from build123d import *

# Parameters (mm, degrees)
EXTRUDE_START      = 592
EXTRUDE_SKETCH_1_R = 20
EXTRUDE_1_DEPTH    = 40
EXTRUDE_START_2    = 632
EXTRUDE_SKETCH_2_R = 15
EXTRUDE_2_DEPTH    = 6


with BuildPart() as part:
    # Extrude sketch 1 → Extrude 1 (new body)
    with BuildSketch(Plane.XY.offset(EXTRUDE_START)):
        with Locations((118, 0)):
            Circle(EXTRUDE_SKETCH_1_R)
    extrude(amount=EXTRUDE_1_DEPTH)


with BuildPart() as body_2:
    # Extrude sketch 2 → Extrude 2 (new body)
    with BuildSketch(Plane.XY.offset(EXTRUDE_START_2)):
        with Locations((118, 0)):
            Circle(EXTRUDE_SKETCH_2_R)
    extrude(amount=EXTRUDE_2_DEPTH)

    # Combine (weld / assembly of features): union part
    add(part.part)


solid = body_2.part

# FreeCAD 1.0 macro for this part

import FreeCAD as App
import Part
import Sketcher

V = App.Vector

doc = App.newDocument("Part")
body = doc.addObject("PartDesign::Body", "Body")

sketch1 = body.newObject("Sketcher::SketchObject", "Sketch")
sketch1.AttachmentSupport = (doc.getObject("XY_Plane"), [""])
sketch1.MapMode = "FlatFace"
sketch1.AttachmentOffset = App.Placement(V(0, 0, 592), App.Rotation())
sketch1.addGeometry(Part.Circle(V(118, 0, 0), V(0, 0, 1), 20), False)
sketch1.addConstraint([
    Sketcher.Constraint("PointOnObject", 0, 3, -1),
    Sketcher.Constraint("Diameter", 0, 40.0),
    Sketcher.Constraint("DistanceX", -1, 1, 0, 3, 118.0),
])
pad1 = body.newObject("PartDesign::Pad", "Pad")
pad1.Profile = sketch1
pad1.Length = 40
body2 = doc.addObject("PartDesign::Body", "Body001")

sketch2 = body2.newObject("Sketcher::SketchObject", "Sketch001")
sketch2.AttachmentSupport = (doc.getObject("XY_Plane001"), [""])
sketch2.MapMode = "FlatFace"
sketch2.AttachmentOffset = App.Placement(V(0, 0, 632), App.Rotation())
sketch2.addGeometry(Part.Circle(V(118, 0, 0), V(0, 0, 1), 15), False)
sketch2.addConstraint([
    Sketcher.Constraint("PointOnObject", 0, 3, -1),
    Sketcher.Constraint("Diameter", 0, 30.0),
    Sketcher.Constraint("DistanceX", -1, 1, 0, 3, 118.0),
])
pad2 = body2.newObject("PartDesign::Pad", "Pad001")
pad2.Profile = sketch2
pad2.Length = 6
doc.recompute()

boolean = body2.newObject("PartDesign::Boolean", "Boolean")
boolean.Type = "Fuse"
boolean.addObjects([body])

doc.recompute()
